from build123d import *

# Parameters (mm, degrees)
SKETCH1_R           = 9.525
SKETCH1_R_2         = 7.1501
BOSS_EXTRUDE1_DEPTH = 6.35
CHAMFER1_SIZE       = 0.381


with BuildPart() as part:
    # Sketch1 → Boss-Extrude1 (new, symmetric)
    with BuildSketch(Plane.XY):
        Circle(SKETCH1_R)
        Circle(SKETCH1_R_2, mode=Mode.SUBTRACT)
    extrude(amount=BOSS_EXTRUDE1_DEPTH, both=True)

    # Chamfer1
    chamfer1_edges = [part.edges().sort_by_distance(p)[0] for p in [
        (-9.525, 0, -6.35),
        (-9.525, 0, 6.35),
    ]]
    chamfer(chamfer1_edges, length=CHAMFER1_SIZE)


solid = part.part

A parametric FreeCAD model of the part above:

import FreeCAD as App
import Part
import Sketcher

V = App.Vector
Q = App.Units.Quantity


def edges_at(feature, points):
    """Names of the edges that pass closest to the given points."""
    edges = feature.Shape.Edges
    near = lambda p: min(range(len(edges)), key=lambda i: edges[i].distToShape(Part.Vertex(*p))[0])
    return sorted({f"Edge{near(p) + 1}" for p in points})

doc = App.newDocument("Part")
body = doc.addObject("PartDesign::Body", "Body")

# Sketch on XY plane
sketch1 = body.newObject("Sketcher::SketchObject", "Sketch")
sketch1.AttachmentSupport = (doc.getObject("XY_Plane"), [""])
sketch1.MapMode = "FlatFace"
sketch1.addGeometry([
    Part.Circle(V(0, 0, 0), V(0, 0, 1), 9.525),
    Part.Circle(V(0, 0, 0), V(0, 0, 1), 7.1501),
], False)
sketch1.addConstraint([
    Sketcher.Constraint("Coincident", 0, 3, -1, 1),
    Sketcher.Constraint("Coincident", 1, 3, -1, 1),
    Sketcher.Constraint("Diameter", 0, Q("0.75 in")),
    Sketcher.Constraint("Diameter", 1, Q("0.563 in")),
])
pad1 = body.newObject("PartDesign::Pad", "Pad")
pad1.Profile = sketch1
pad1.Length = Q("0.5 in")
pad1.Midplane = True
doc.recompute()

chamfer = body.newObject("PartDesign::Chamfer", "Chamfer")
chamfer.Base = (pad1, edges_at(pad1, [(-9.525, 0, -6.35), (-9.525, 0, 6.35)]))
chamfer.Size = Q("0.015 in")

doc.recompute()
